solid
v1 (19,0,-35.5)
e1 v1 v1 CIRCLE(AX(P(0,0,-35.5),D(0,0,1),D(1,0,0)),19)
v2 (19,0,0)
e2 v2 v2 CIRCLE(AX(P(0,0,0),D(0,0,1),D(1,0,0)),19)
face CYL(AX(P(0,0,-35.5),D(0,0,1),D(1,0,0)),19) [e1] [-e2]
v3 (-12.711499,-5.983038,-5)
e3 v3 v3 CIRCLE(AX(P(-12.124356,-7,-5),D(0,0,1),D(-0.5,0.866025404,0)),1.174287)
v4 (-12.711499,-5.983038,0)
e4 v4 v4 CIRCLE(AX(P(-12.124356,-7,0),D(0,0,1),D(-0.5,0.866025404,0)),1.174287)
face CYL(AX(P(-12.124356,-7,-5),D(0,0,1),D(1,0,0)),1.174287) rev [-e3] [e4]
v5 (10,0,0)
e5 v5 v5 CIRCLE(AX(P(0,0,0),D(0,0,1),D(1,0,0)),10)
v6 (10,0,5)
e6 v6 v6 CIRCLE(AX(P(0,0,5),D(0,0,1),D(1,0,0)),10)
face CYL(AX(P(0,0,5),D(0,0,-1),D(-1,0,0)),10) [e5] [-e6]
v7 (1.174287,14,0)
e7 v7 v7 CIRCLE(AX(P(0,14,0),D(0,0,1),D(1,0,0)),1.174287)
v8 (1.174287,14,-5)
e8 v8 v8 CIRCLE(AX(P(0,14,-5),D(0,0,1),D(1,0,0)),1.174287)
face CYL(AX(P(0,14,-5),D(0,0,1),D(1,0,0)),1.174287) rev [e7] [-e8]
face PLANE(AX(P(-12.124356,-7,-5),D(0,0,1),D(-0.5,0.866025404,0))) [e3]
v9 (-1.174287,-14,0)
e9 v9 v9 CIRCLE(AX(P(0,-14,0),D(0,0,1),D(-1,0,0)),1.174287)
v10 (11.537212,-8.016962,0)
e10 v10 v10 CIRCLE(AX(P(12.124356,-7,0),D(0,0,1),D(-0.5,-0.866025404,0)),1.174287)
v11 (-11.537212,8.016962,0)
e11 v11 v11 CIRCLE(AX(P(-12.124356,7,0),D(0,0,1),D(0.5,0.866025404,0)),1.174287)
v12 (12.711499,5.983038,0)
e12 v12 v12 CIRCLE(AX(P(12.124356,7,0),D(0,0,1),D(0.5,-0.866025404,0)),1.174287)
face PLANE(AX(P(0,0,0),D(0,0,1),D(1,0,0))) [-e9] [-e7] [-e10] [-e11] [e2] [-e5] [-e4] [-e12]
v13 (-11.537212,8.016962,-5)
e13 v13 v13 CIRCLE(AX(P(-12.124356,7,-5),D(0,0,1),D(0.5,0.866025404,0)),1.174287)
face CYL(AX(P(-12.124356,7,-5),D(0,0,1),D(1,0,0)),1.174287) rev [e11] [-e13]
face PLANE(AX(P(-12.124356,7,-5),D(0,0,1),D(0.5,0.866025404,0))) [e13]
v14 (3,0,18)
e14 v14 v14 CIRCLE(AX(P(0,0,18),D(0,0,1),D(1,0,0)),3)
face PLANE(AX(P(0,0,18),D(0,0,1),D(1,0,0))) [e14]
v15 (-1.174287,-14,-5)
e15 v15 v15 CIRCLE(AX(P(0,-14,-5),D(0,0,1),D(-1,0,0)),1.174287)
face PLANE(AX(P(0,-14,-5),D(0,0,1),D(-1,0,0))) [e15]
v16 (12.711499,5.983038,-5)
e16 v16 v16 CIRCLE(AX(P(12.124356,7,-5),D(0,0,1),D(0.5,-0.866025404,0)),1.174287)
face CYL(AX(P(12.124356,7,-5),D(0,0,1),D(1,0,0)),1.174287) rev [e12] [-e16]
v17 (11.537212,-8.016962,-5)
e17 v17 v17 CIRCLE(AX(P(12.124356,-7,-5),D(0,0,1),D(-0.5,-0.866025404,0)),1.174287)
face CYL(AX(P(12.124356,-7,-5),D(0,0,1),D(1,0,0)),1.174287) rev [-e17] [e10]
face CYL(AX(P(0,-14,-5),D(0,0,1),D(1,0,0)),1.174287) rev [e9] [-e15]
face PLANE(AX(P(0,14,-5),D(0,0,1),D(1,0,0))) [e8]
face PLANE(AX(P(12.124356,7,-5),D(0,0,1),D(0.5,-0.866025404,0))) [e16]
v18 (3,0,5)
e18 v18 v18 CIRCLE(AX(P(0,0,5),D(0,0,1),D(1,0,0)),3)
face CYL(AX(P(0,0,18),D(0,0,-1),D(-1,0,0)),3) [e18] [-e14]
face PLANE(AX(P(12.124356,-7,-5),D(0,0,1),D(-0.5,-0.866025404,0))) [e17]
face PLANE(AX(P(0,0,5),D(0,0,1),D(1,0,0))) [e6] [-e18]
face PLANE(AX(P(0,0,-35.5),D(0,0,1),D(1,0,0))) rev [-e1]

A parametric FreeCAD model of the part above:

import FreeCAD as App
import Part
import Sketcher

doc = App.newDocument("Part")
params = doc.addObject("Spreadsheet::Sheet", "Params")
for row, (alias, value) in enumerate([
    ("sketch1_diameter", "38 mm"),
    ("pad1_length", "35.5 mm"),
    ("sketch2_diameter", "20 mm"),
    ("pad2_length", "5 mm"),
    ("sketch3_diameter", "6 mm"),
    ("pad3_length", "13 mm"),
    ("pocket1_length", "5 mm"),
], start=1):
    params.set(f"A{row}", alias)
    params.set(f"B{row}", "=" + value)
    params.setAlias(f"B{row}", alias)

body = doc.addObject("PartDesign::Body", "Body")

# Sketch on XY plane
sketch1 = body.newObject("Sketcher::SketchObject", "Sketch")
sketch1.AttachmentSupport = (doc.getObject("XY_Plane"), [""])
sketch1.MapMode = "FlatFace"
sketch1.addGeometry(Part.Circle(App.Vector(0, 0, 0), App.Vector(0, 0, 1), 19), False)
sketch1.addConstraint([
    Sketcher.Constraint("Coincident", 0, 3, -1, 1),
    Sketcher.Constraint("Diameter", 0, 38.0),
])
sketch1.setExpression("Constraints[1]", "Params.sketch1_diameter")
pad1 = body.newObject("PartDesign::Pad", "Pad")
pad1.Profile = sketch1
pad1.setExpression("Length", "Params.pad1_length")
pad1.Reversed = True

# Sketch on XY plane
sketch2 = body.newObject("Sketcher::SketchObject", "Sketch001")
sketch2.AttachmentSupport = (doc.getObject("XY_Plane"), [""])
sketch2.MapMode = "FlatFace"
sketch2.addGeometry(Part.Circle(App.Vector(0, 0, 0), App.Vector(0, 0, 1), 10), False)
sketch2.addConstraint([
    Sketcher.Constraint("Coincident", 0, 3, -1, 1),
    Sketcher.Constraint("Diameter", 0, 20.0),
])
sketch2.setExpression("Constraints[1]", "Params.sketch2_diameter")
pad2 = body.newObject("PartDesign::Pad", "Pad001")
pad2.Profile = sketch2
pad2.setExpression("Length", "Params.pad2_length")

# Sketch on XY plane
sketch3 = body.newObject("Sketcher::SketchObject", "Sketch002")
sketch3.AttachmentSupport = (doc.getObject("XY_Plane"), [""])
sketch3.MapMode = "FlatFace"
sketch3.AttachmentOffset = App.Placement(App.Vector(0, 0, 5), App.Rotation())
sketch3.addGeometry(Part.Circle(App.Vector(0, 0, 0), App.Vector(0, 0, 1), 3), False)
sketch3.addConstraint([
    Sketcher.Constraint("Coincident", 0, 3, -1, 1),
    Sketcher.Constraint("Diameter", 0, 6.0),
])
sketch3.setExpression("Constraints[1]", "Params.sketch3_diameter")
pad3 = body.newObject("PartDesign::Pad", "Pad002")
pad3.Profile = sketch3
pad3.setExpression("Length", "Params.pad3_length")

# Sketch on XY plane
sketch4 = body.newObject("Sketcher::SketchObject", "Sketch003")
sketch4.AttachmentSupport = (doc.getObject("XY_Plane"), [""])
sketch4.MapMode = "FlatFace"
sketch4.addGeometry(Part.Circle(App.Vector(0, 14, 0), App.Vector(0, 0, 1), 1.2), False)
sketch4.addConstraint([
    Sketcher.Constraint("PointOnObject", 0, 3, -2),
    Sketcher.Constraint("DistanceY", -1, 1, 0, 3, 14.0),
    Sketcher.Constraint("Diameter", 0, 2.348573),
])
pocket1 = body.newObject("PartDesign::Pocket", "Pocket")
pocket1.Profile = sketch4
pocket1.setExpression("Length", "Params.pocket1_length")
doc.recompute()

polarpattern = body.newObject("PartDesign::PolarPattern", "PolarPattern")
polarpattern.Originals = [pocket1]
polarpattern.Axis = (doc.getObject("Z_Axis"), [""])
polarpattern.Angle = 360
polarpattern.Occurrences = 6
body.Tip = polarpattern

doc.recompute()
